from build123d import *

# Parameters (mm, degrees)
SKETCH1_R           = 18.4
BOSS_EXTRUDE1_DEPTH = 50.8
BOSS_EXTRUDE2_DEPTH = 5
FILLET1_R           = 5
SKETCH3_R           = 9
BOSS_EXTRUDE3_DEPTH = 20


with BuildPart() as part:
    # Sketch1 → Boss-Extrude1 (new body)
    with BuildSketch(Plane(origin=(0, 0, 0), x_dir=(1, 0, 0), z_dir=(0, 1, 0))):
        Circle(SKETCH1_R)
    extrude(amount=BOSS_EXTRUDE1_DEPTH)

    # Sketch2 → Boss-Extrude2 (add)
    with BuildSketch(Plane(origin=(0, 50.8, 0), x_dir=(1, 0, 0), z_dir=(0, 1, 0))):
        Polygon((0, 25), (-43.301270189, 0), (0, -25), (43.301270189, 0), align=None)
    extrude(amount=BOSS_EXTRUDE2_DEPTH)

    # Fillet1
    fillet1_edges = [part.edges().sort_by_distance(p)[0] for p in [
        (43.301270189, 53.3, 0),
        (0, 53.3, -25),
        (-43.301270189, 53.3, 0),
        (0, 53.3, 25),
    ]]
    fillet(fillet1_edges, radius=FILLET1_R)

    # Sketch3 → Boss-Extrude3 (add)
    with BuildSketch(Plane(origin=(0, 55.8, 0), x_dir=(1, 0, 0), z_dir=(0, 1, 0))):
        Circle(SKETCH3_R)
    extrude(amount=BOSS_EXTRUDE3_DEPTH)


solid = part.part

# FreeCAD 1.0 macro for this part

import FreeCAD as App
import Part
import Sketcher
from FreeCAD import Vector
Q = App.Units.Quantity


def edges_at(feature, points):
    """Names of the edges that pass closest to the given points."""
    edges = feature.Shape.Edges
    near = lambda p: min(range(len(edges)), key=lambda i: edges[i].distToShape(Part.Vertex(*p))[0])
    return sorted({f"Edge{near(p) + 1}" for p in points})


def add_polygon(sketch, points):
    """Adds a closed chain of lines whose ends are joined by coincident constraints."""
    first, n = sketch.GeometryCount, len(points)
    for a, b in zip(points, points[1:] + points[:1]):
        sketch.addGeometry(Part.LineSegment(App.Vector(*a, 0), App.Vector(*b, 0)), False)
    for i in range(n):
        sketch.addConstraint(Sketcher.Constraint("Coincident", first + i, 2, first + (i + 1) % n, 1))

doc = App.newDocument("Part")
body = doc.addObject("PartDesign::Body", "Body")

# Sketch on XZ plane
sketch1 = body.newObject("Sketcher::SketchObject", "Sketch")
sketch1.AttachmentSupport = (doc.getObject("XZ_Plane"), [""])
sketch1.MapMode = "FlatFace"
sketch1.addGeometry(Part.Circle(Vector(0, 0, 0), Vector(0, 0, 1), 18.4), False)
sketch1.addConstraint(Sketcher.Constraint("Coincident", 0, 3, -1, 1))
sketch1.addConstraint(Sketcher.Constraint("Diameter", 0, 36.8))
pad1 = body.newObject("PartDesign::Pad", "Pad")
pad1.Profile = sketch1
pad1.Length = 50.8
pad1.Reversed = True

# Sketch on XZ plane
sketch2 = body.newObject("Sketcher::SketchObject", "Sketch001")
sketch2.AttachmentSupport = (doc.getObject("XZ_Plane"), [""])
sketch2.MapMode = "FlatFace"
sketch2.AttachmentOffset = App.Placement(Vector(0, 0, -50.8), App.Rotation())
add_polygon(sketch2, [(0, -25), (-43.30127, 0), (0, 25), (43.30127, 0)])  # lines 0-3
sketch2.addConstraint(Sketcher.Constraint("Symmetric", 0, 2, 2, 2, -1, 1))
sketch2.addConstraint(Sketcher.Constraint("Symmetric", 1, 2, 3, 2, -1, 1))
sketch2.addConstraint(Sketcher.Constraint("PointOnObject", 0, 2, -1))
sketch2.addConstraint(Sketcher.Constraint("PointOnObject", 1, 2, -2))
sketch2.addConstraint(Sketcher.Constraint("Angle", 0, Q("150 deg")))
sketch2.addConstraint(Sketcher.Constraint("Distance", 0, 50.0))
pad2 = body.newObject("PartDesign::Pad", "Pad001")
pad2.Profile = sketch2
pad2.Length = 5
pad2.Reversed = True
doc.recompute()

fillet = body.newObject("PartDesign::Fillet", "Fillet")
fillet.Base = (pad2, edges_at(pad2, [
    (43.301, 53.3, 0),
    (0, 53.3, -25),
    (-43.301, 53.3, 0),
    (0, 53.3, 25),
]))
fillet.Radius = 5

# Sketch on XZ plane
sketch3 = body.newObject("Sketcher::SketchObject", "Sketch002")
sketch3.AttachmentSupport = (doc.getObject("XZ_Plane"), [""])
sketch3.MapMode = "FlatFace"
sketch3.AttachmentOffset = App.Placement(Vector(0, 0, -55.8), App.Rotation())
sketch3.addGeometry(Part.Circle(Vector(0, 0, 0), Vector(0, 0, 1), 9), False)
sketch3.addConstraint(Sketcher.Constraint("Coincident", 0, 3, -1, 1))
sketch3.addConstraint(Sketcher.Constraint("Diameter", 0, 18.0))
pad3 = body.newObject("PartDesign::Pad", "Pad002")
pad3.Profile = sketch3
pad3.Length = 20
pad3.Reversed = True

doc.recompute()
